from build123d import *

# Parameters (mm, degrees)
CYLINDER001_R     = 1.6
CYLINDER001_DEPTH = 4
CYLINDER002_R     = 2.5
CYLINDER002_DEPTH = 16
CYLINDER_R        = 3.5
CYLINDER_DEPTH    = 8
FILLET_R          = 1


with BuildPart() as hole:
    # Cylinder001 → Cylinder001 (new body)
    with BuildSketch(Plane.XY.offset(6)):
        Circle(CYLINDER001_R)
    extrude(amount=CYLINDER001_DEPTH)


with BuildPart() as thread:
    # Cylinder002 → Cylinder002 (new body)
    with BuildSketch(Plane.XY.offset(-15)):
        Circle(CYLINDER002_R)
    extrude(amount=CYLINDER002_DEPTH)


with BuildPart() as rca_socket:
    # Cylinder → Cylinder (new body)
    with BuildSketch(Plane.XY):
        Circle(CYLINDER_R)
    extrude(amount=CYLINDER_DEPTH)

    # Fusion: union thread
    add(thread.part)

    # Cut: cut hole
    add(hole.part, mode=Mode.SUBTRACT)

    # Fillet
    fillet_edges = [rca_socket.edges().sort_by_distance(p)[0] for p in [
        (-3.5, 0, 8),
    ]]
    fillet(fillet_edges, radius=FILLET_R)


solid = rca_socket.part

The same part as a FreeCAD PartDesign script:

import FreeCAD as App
import Part
import Sketcher
from FreeCAD import Vector


def edges_at(feature, points):
    """Names of the edges that pass closest to the given points."""
    edges = feature.Shape.Edges
    near = lambda p: min(range(len(edges)), key=lambda i: edges[i].distToShape(Part.Vertex(*p))[0])
    return sorted({f"Edge{near(p) + 1}" for p in points})

doc = App.newDocument("Part")
body = doc.addObject("PartDesign::Body", "Body")

sketch1 = body.newObject("Sketcher::SketchObject", "Sketch")
sketch1.AttachmentSupport = (doc.getObject("XY_Plane"), [""])
sketch1.MapMode = "FlatFace"
sketch1.AttachmentOffset = App.Placement(Vector(0, 0, 6), App.Rotation())
sketch1.addGeometry(Part.Circle(Vector(0, 0, 0), Vector(0, 0, 1), 1.6), False)
sketch1.addConstraint([
    Sketcher.Constraint("Coincident", 0, 3, -1, 1),
    Sketcher.Constraint("Diameter", 0, 3.2),
])
pad1 = body.newObject("PartDesign::Pad", "Pad")
pad1.Profile = sketch1
pad1.Length = 4
body2 = doc.addObject("PartDesign::Body", "Body001")

sketch2 = body2.newObject("Sketcher::SketchObject", "Sketch001")
sketch2.AttachmentSupport = (doc.getObject("XY_Plane001"), [""])
sketch2.MapMode = "FlatFace"
sketch2.AttachmentOffset = App.Placement(Vector(0, 0, -15), App.Rotation())
sketch2.addGeometry(Part.Circle(Vector(0, 0, 0), Vector(0, 0, 1), 2.5), False)
sketch2.addConstraint([
    Sketcher.Constraint("Coincident", 0, 3, -1, 1),
    Sketcher.Constraint("Diameter", 0, 5.0),
])
pad2 = body2.newObject("PartDesign::Pad", "Pad001")
pad2.Profile = sketch2
pad2.Length = 16
body3 = doc.addObject("PartDesign::Body", "Body002")

sketch3 = body3.newObject("Sketcher::SketchObject", "Sketch002")
sketch3.AttachmentSupport = (doc.getObject("XY_Plane002"), [""])
sketch3.MapMode = "FlatFace"
sketch3.addGeometry(Part.Circle(Vector(0, 0, 0), Vector(0, 0, 1), 3.5), False)
sketch3.addConstraint([
    Sketcher.Constraint("Coincident", 0, 3, -1, 1),
    Sketcher.Constraint("Diameter", 0, 7.0),
])
pad3 = body3.newObject("PartDesign::Pad", "Pad002")
pad3.Profile = sketch3
pad3.Length = 8
doc.recompute()

boolean = body3.newObject("PartDesign::Boolean", "Boolean")
boolean.Type = "Fuse"
boolean.addObjects([body2])
doc.recompute()

boolean2 = body3.newObject("PartDesign::Boolean", "Boolean001")
boolean2.Type = "Cut"
boolean2.addObjects([body])
doc.recompute()

fillet = body3.newObject("PartDesign::Fillet", "Fillet")
fillet.Base = (boolean2, edges_at(boolean2, [(-3.5, 0, 8)]))
fillet.Radius = 1

doc.recompute()
